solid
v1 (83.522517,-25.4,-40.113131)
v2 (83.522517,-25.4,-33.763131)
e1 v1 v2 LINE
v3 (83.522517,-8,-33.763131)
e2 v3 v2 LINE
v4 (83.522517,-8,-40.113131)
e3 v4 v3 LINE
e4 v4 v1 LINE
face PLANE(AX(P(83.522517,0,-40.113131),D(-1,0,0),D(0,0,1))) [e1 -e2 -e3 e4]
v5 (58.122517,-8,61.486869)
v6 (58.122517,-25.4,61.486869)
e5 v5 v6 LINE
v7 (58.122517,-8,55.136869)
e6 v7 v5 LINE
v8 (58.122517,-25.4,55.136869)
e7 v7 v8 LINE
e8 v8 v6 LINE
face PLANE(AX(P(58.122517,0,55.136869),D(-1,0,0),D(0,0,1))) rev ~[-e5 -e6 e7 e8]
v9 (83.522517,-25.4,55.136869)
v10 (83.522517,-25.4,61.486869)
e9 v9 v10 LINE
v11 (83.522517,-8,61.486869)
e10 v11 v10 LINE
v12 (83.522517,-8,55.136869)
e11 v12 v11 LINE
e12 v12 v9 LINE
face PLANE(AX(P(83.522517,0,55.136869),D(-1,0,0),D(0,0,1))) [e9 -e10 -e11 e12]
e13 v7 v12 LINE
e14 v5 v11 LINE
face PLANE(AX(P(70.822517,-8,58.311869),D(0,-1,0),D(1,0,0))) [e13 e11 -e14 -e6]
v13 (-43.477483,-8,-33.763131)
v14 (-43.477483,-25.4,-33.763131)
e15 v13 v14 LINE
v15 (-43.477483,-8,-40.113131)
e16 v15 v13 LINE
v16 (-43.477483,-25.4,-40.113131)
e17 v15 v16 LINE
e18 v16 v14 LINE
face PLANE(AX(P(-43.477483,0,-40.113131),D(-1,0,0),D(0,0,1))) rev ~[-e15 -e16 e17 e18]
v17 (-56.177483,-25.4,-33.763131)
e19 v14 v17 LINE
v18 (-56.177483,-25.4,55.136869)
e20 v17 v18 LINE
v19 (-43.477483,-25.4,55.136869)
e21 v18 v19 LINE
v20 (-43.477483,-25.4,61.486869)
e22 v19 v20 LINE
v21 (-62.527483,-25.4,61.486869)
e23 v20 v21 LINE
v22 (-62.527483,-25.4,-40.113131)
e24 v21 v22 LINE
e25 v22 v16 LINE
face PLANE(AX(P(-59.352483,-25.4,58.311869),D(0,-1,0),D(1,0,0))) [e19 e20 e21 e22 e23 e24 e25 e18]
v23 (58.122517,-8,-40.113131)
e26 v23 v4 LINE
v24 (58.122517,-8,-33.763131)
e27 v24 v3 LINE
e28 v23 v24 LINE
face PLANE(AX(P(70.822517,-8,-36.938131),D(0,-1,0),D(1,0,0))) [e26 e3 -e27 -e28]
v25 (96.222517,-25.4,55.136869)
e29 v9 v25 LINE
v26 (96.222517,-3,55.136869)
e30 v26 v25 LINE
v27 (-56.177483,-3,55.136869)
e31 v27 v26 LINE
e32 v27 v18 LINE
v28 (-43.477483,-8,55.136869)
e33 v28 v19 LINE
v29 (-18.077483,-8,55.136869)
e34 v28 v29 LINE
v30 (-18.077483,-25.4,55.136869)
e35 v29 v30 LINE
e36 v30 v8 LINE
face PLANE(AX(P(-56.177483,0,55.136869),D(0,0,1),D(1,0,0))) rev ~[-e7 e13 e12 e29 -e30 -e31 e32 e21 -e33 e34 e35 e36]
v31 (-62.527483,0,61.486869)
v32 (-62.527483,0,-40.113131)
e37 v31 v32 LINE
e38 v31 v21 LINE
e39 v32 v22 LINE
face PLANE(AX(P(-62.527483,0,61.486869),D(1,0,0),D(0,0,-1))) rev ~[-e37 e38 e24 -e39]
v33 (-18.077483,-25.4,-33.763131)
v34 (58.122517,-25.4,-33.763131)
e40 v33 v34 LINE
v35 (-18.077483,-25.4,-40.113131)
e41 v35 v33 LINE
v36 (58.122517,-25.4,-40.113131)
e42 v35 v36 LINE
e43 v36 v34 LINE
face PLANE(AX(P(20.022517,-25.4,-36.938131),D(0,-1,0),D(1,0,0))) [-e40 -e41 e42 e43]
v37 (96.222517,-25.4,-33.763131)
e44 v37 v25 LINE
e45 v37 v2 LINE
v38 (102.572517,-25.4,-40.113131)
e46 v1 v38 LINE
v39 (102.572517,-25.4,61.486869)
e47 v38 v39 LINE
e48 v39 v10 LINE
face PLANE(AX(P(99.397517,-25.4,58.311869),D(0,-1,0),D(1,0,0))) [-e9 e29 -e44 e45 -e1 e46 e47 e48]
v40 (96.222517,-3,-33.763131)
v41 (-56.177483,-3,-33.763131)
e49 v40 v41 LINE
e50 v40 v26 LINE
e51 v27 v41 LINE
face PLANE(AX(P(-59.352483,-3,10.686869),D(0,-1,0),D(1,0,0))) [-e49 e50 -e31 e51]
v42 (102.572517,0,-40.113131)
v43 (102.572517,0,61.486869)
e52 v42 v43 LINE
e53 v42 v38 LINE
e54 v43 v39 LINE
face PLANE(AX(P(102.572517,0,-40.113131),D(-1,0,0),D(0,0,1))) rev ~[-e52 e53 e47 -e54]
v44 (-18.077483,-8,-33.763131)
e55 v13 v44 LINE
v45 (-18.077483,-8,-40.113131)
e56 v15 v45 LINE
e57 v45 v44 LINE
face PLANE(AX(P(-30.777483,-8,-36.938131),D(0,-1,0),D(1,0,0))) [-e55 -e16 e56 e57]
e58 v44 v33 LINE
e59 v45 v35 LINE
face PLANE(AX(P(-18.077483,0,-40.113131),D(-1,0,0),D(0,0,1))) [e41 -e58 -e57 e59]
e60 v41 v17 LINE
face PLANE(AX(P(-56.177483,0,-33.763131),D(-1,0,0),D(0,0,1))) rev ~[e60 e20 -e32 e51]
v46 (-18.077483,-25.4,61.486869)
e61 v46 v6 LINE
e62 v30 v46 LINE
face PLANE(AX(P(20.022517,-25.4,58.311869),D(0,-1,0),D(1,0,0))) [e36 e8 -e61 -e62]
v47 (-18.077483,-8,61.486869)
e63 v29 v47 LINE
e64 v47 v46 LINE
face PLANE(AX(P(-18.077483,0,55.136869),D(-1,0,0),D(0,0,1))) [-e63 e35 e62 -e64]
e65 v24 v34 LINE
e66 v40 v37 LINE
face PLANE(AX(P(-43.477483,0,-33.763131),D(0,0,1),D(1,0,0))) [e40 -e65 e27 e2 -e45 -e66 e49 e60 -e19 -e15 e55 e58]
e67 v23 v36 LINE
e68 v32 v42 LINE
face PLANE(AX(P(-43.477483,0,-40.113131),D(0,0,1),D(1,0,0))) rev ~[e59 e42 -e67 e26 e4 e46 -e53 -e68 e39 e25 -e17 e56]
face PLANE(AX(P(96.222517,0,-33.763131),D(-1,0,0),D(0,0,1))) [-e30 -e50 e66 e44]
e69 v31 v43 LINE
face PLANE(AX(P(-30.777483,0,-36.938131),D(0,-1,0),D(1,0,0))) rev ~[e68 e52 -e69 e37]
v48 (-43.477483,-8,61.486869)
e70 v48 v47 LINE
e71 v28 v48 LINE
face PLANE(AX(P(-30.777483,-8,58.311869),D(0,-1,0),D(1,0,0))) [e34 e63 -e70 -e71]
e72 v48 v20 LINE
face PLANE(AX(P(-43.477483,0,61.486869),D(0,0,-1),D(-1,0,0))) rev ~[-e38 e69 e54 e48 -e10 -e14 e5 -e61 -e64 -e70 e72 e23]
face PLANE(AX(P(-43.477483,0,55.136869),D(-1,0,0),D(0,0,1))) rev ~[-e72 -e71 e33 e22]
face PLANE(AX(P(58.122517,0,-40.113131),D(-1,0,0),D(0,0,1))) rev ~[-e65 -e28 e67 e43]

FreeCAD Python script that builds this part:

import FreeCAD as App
import Part
import Sketcher
from FreeCAD import Vector
Q = App.Units.Quantity

doc = App.newDocument("Part")
body = doc.addObject("PartDesign::Body", "Body")

# Sketch on XZ plane
sketch1 = body.newObject("Sketcher::SketchObject", "Sketch")
sketch1.AttachmentSupport = (doc.getObject("XZ_Plane"), [""])
sketch1.MapMode = "FlatFace"
sketch1.addGeometry(Part.LineSegment(Vector(-63, 55, 0), Vector(-63, -34, 0)), False)
sketch1.addGeometry(Part.LineSegment(Vector(-63, -34, 0), Vector(96, -34, 0)), False)
sketch1.addGeometry(Part.LineSegment(Vector(96, -34, 0), Vector(96, 55, 0)), False)
sketch1.addGeometry(Part.LineSegment(Vector(96, 55, 0), Vector(-63, 55, 0)), False)
sketch1.addConstraint(Sketcher.Constraint("Coincident", 0, 2, 1, 1))
sketch1.addConstraint(Sketcher.Constraint("Coincident", 1, 2, 2, 1))
sketch1.addConstraint(Sketcher.Constraint("Coincident", 2, 2, 3, 1))
sketch1.addConstraint(Sketcher.Constraint("Coincident", 3, 2, 0, 1))
sketch1.addConstraint(Sketcher.Constraint("Vertical", 0))
sketch1.addConstraint(Sketcher.Constraint("Horizontal", 1))
sketch1.addConstraint(Sketcher.Constraint("Vertical", 2))
sketch1.addConstraint(Sketcher.Constraint("Horizontal", 3))
sketch1.addConstraint(Sketcher.Constraint("DistanceY", 0, 2, 0, 1, Q("3.5 in")))
sketch1.addConstraint(Sketcher.Constraint("DistanceX", 1, 1, 1, 2, Q("6.25 in")))
sketch1.addConstraint(Sketcher.Constraint("DistanceY", 0, 2, -1, 1, 33.763131))
sketch1.addConstraint(Sketcher.Constraint("DistanceX", 0, 2, -1, 1, 62.527483))
pad1 = body.newObject("PartDesign::Pad", "Pad")
pad1.Profile = sketch1
pad1.Length = 3

# Sketch on XZ plane
sketch2 = body.newObject("Sketcher::SketchObject", "Sketch001")
sketch2.AttachmentSupport = (doc.getObject("XZ_Plane"), [""])
sketch2.MapMode = "FlatFace"
sketch2.addGeometry(Part.LineSegment(Vector(-63, 61, 0), Vector(-63, -40, 0)), False)
sketch2.addGeometry(Part.LineSegment(Vector(-63, -40, 0), Vector(-43, -40, 0)), False)
sketch2.addGeometry(Part.LineSegment(Vector(-43, -40, 0), Vector(-43, -34, 0)), False)
sketch2.addGeometry(Part.LineSegment(Vector(-43, -34, 0), Vector(-56, -34, 0)), False)
sketch2.addGeometry(Part.LineSegment(Vector(-56, -34, 0), Vector(-56, 55, 0)), False)
sketch2.addGeometry(Part.LineSegment(Vector(-56, 55, 0), Vector(-43, 55, 0)), False)
sketch2.addGeometry(Part.LineSegment(Vector(-43, 55, 0), Vector(-43, 61, 0)), False)
sketch2.addGeometry(Part.LineSegment(Vector(-43, 61, 0), Vector(-63, 61, 0)), False)
sketch2.addGeometry(Part.LineSegment(Vector(103, 61, 0), Vector(84, 61, 0)), False)
sketch2.addGeometry(Part.LineSegment(Vector(84, 61, 0), Vector(84, 55, 0)), False)
sketch2.addGeometry(Part.LineSegment(Vector(84, 55, 0), Vector(96, 55, 0)), False)
sketch2.addGeometry(Part.LineSegment(Vector(96, 55, 0), Vector(96, -34, 0)), False)
sketch2.addGeometry(Part.LineSegment(Vector(96, -34, 0), Vector(84, -34, 0)), False)
sketch2.addGeometry(Part.LineSegment(Vector(84, -34, 0), Vector(84, -40, 0)), False)
sketch2.addGeometry(Part.LineSegment(Vector(84, -40, 0), Vector(103, -40, 0)), False)
sketch2.addGeometry(Part.LineSegment(Vector(103, -40, 0), Vector(103, 61, 0)), False)
sketch2.addGeometry(Part.LineSegment(Vector(-18, 61, 0), Vector(-18, 55, 0)), False)
sketch2.addGeometry(Part.LineSegment(Vector(-18, 55, 0), Vector(58, 55, 0)), False)
sketch2.addGeometry(Part.LineSegment(Vector(58, 55, 0), Vector(58, 61, 0)), False)
sketch2.addGeometry(Part.LineSegment(Vector(58, 61, 0), Vector(-18, 61, 0)), False)
sketch2.addGeometry(Part.LineSegment(Vector(-18, -34, 0), Vector(-18, -40, 0)), False)
sketch2.addGeometry(Part.LineSegment(Vector(-18, -40, 0), Vector(58, -40, 0)), False)
sketch2.addGeometry(Part.LineSegment(Vector(58, -40, 0), Vector(58, -34, 0)), False)
sketch2.addGeometry(Part.LineSegment(Vector(58, -34, 0), Vector(-18, -34, 0)), False)
sketch2.addConstraint(Sketcher.Constraint("Coincident", 0, 2, 1, 1))
sketch2.addConstraint(Sketcher.Constraint("Coincident", 1, 2, 2, 1))
sketch2.addConstraint(Sketcher.Constraint("Coincident", 2, 2, 3, 1))
sketch2.addConstraint(Sketcher.Constraint("Coincident", 3, 2, 4, 1))
sketch2.addConstraint(Sketcher.Constraint("Coincident", 4, 2, 5, 1))
sketch2.addConstraint(Sketcher.Constraint("Coincident", 5, 2, 6, 1))
sketch2.addConstraint(Sketcher.Constraint("Coincident", 6, 2, 7, 1))
sketch2.addConstraint(Sketcher.Constraint("Coincident", 7, 2, 0, 1))
sketch2.addConstraint(Sketcher.Constraint("Coincident", 8, 2, 9, 1))
sketch2.addConstraint(Sketcher.Constraint("Coincident", 9, 2, 10, 1))
sketch2.addConstraint(Sketcher.Constraint("Coincident", 10, 2, 11, 1))
sketch2.addConstraint(Sketcher.Constraint("Coincident", 11, 2, 12, 1))
sketch2.addConstraint(Sketcher.Constraint("Coincident", 12, 2, 13, 1))
sketch2.addConstraint(Sketcher.Constraint("Coincident", 13, 2, 14, 1))
sketch2.addConstraint(Sketcher.Constraint("Coincident", 14, 2, 15, 1))
sketch2.addConstraint(Sketcher.Constraint("Coincident", 15, 2, 8, 1))
sketch2.addConstraint(Sketcher.Constraint("Coincident", 16, 2, 17, 1))
sketch2.addConstraint(Sketcher.Constraint("Coincident", 17, 2, 18, 1))
sketch2.addConstraint(Sketcher.Constraint("Coincident", 18, 2, 19, 1))
sketch2.addConstraint(Sketcher.Constraint("Coincident", 19, 2, 16, 1))
sketch2.addConstraint(Sketcher.Constraint("Coincident", 20, 2, 21, 1))
sketch2.addConstraint(Sketcher.Constraint("Coincident", 21, 2, 22, 1))
sketch2.addConstraint(Sketcher.Constraint("Coincident", 22, 2, 23, 1))
sketch2.addConstraint(Sketcher.Constraint("Coincident", 23, 2, 20, 1))
sketch2.addConstraint(Sketcher.Constraint("Vertical", 0))
sketch2.addConstraint(Sketcher.Constraint("Horizontal", 1))
sketch2.addConstraint(Sketcher.Constraint("Vertical", 2))
sketch2.addConstraint(Sketcher.Constraint("Horizontal", 3))
sketch2.addConstraint(Sketcher.Constraint("Vertical", 4))
sketch2.addConstraint(Sketcher.Constraint("Horizontal", 5))
sketch2.addConstraint(Sketcher.Constraint("Vertical", 6))
sketch2.addConstraint(Sketcher.Constraint("Horizontal", 7))
sketch2.addConstraint(Sketcher.Constraint("Horizontal", 8))
sketch2.addConstraint(Sketcher.Constraint("Vertical", 9))
sketch2.addConstraint(Sketcher.Constraint("Horizontal", 10))
sketch2.addConstraint(Sketcher.Constraint("Vertical", 11))
sketch2.addConstraint(Sketcher.Constraint("Horizontal", 12))
sketch2.addConstraint(Sketcher.Constraint("Vertical", 13))
sketch2.addConstraint(Sketcher.Constraint("Horizontal", 14))
sketch2.addConstraint(Sketcher.Constraint("Vertical", 15))
sketch2.addConstraint(Sketcher.Constraint("Vertical", 16))
sketch2.addConstraint(Sketcher.Constraint("Horizontal", 17))
sketch2.addConstraint(Sketcher.Constraint("Vertical", 18))
sketch2.addConstraint(Sketcher.Constraint("Horizontal", 19))
sketch2.addConstraint(Sketcher.Constraint("Vertical", 20))
sketch2.addConstraint(Sketcher.Constraint("Horizontal", 21))
sketch2.addConstraint(Sketcher.Constraint("Vertical", 22))
sketch2.addConstraint(Sketcher.Constraint("Horizontal", 23))
sketch2.addConstraint(Sketcher.Constraint("Horizontal", 7, 2, 8, 2))
sketch2.addConstraint(Sketcher.Constraint("Horizontal", 5, 2, 9, 2))
sketch2.addConstraint(Sketcher.Constraint("Horizontal", 3, 2, 11, 2))
sketch2.addConstraint(Sketcher.Constraint("Horizontal", 1, 2, 13, 2))
sketch2.addConstraint(Sketcher.Constraint("Horizontal", 10, 2, 16, 2))
sketch2.addConstraint(Sketcher.Constraint("Horizontal", 15, 2, 18, 2))
sketch2.addConstraint(Sketcher.Constraint("Horizontal", 14, 2, 20, 2))
sketch2.addConstraint(Sketcher.Constraint("Horizontal", 12, 2, 22, 2))
sketch2.addConstraint(Sketcher.Constraint("Vertical", 2, 2, 5, 2))
sketch2.addConstraint(Sketcher.Constraint("Vertical", 9, 2, 12, 2))
sketch2.addConstraint(Sketcher.Constraint("Vertical", 19, 2, 20, 2))
sketch2.addConstraint(Sketcher.Constraint("Vertical", 18, 2, 21, 2))
sketch2.addConstraint(Sketcher.Constraint("Equal", 7, 8))
sketch2.addConstraint(Sketcher.Constraint("Equal", 5, 10))
sketch2.addConstraint(Sketcher.Constraint("Equal", 2, 6))
sketch2.addConstraint(Sketcher.Constraint("DistanceX", 17, 1, 17, 2, Q("3 in")))
sketch2.addConstraint(Sketcher.Constraint("DistanceY", 0, 2, 0, 1, Q("4 in")))
sketch2.addConstraint(Sketcher.Constraint("DistanceX", 3, 2, 3, 1, Q("0.5 in")))
sketch2.addConstraint(Sketcher.Constraint("DistanceY", 4, 1, 4, 2, Q("3.5 in")))
sketch2.addConstraint(Sketcher.Constraint("DistanceX", 6, 2, 8, 2, Q("5 in")))
sketch2.addConstraint(Sketcher.Constraint("DistanceX", 5, 2, 16, 2, Q("1 in")))
sketch2.addConstraint(Sketcher.Constraint("DistanceX", 1, 1, 1, 2, Q("0.75 in")))
sketch2.addConstraint(Sketcher.Constraint("DistanceY", 0, 2, -1, 1, 40.113131))
sketch2.addConstraint(Sketcher.Constraint("DistanceX", 0, 2, -1, 1, 62.527483))
pad2 = body.newObject("PartDesign::Pad", "Pad001")
pad2.Profile = sketch2
pad2.Length = Q("1 in")

# Sketch on XZ plane
sketch3 = body.newObject("Sketcher::SketchObject", "Sketch002")
sketch3.AttachmentSupport = (doc.getObject("XZ_Plane"), [""])
sketch3.MapMode = "FlatFace"
sketch3.addGeometry(Part.LineSegment(Vector(-43, -34, 0), Vector(-43, -40, 0)), False)
sketch3.addGeometry(Part.LineSegment(Vector(-43, -40, 0), Vector(-18, -40, 0)), False)
sketch3.addGeometry(Part.LineSegment(Vector(-18, -40, 0), Vector(-18, -34, 0)), False)
sketch3.addGeometry(Part.LineSegment(Vector(-18, -34, 0), Vector(-43, -34, 0)), False)
sketch3.addGeometry(Part.LineSegment(Vector(-43, 61, 0), Vector(-43, 55, 0)), False)
sketch3.addGeometry(Part.LineSegment(Vector(-43, 55, 0), Vector(-18, 55, 0)), False)
sketch3.addGeometry(Part.LineSegment(Vector(-18, 55, 0), Vector(-18, 61, 0)), False)
sketch3.addGeometry(Part.LineSegment(Vector(-18, 61, 0), Vector(-43, 61, 0)), False)
sketch3.addGeometry(Part.LineSegment(Vector(58, 61, 0), Vector(58, 55, 0)), False)
sketch3.addGeometry(Part.LineSegment(Vector(58, 55, 0), Vector(84, 55, 0)), False)
sketch3.addGeometry(Part.LineSegment(Vector(84, 55, 0), Vector(84, 61, 0)), False)
sketch3.addGeometry(Part.LineSegment(Vector(84, 61, 0), Vector(58, 61, 0)), False)
sketch3.addGeometry(Part.LineSegment(Vector(58, -34, 0), Vector(58, -40, 0)), False)
sketch3.addGeometry(Part.LineSegment(Vector(58, -40, 0), Vector(84, -40, 0)), False)
sketch3.addGeometry(Part.LineSegment(Vector(84, -40, 0), Vector(84, -34, 0)), False)
sketch3.addGeometry(Part.LineSegment(Vector(84, -34, 0), Vector(58, -34, 0)), False)
sketch3.addConstraint(Sketcher.Constraint("Coincident", 0, 2, 1, 1))
sketch3.addConstraint(Sketcher.Constraint("Coincident", 1, 2, 2, 1))
sketch3.addConstraint(Sketcher.Constraint("Coincident", 2, 2, 3, 1))
sketch3.addConstraint(Sketcher.Constraint("Coincident", 3, 2, 0, 1))
sketch3.addConstraint(Sketcher.Constraint("Coincident", 4, 2, 5, 1))
sketch3.addConstraint(Sketcher.Constraint("Coincident", 5, 2, 6, 1))
sketch3.addConstraint(Sketcher.Constraint("Coincident", 6, 2, 7, 1))
sketch3.addConstraint(Sketcher.Constraint("Coincident", 7, 2, 4, 1))
sketch3.addConstraint(Sketcher.Constraint("Coincident", 8, 2, 9, 1))
sketch3.addConstraint(Sketcher.Constraint("Coincident", 9, 2, 10, 1))
sketch3.addConstraint(Sketcher.Constraint("Coincident", 10, 2, 11, 1))
sketch3.addConstraint(Sketcher.Constraint("Coincident", 11, 2, 8, 1))
sketch3.addConstraint(Sketcher.Constraint("Coincident", 12, 2, 13, 1))
sketch3.addConstraint(Sketcher.Constraint("Coincident", 13, 2, 14, 1))
sketch3.addConstraint(Sketcher.Constraint("Coincident", 14, 2, 15, 1))
sketch3.addConstraint(Sketcher.Constraint("Coincident", 15, 2, 12, 1))
sketch3.addConstraint(Sketcher.Constraint("Vertical", 0))
sketch3.addConstraint(Sketcher.Constraint("Horizontal", 1))
sketch3.addConstraint(Sketcher.Constraint("Vertical", 2))
sketch3.addConstraint(Sketcher.Constraint("Horizontal", 3))
sketch3.addConstraint(Sketcher.Constraint("Vertical", 4))
sketch3.addConstraint(Sketcher.Constraint("Horizontal", 5))
sketch3.addConstraint(Sketcher.Constraint("Vertical", 6))
sketch3.addConstraint(Sketcher.Constraint("Horizontal", 7))
sketch3.addConstraint(Sketcher.Constraint("Vertical", 8))
sketch3.addConstraint(Sketcher.Constraint("Horizontal", 9))
sketch3.addConstraint(Sketcher.Constraint("Vertical", 10))
sketch3.addConstraint(Sketcher.Constraint("Horizontal", 11))
sketch3.addConstraint(Sketcher.Constraint("Vertical", 12))
sketch3.addConstraint(Sketcher.Constraint("Horizontal", 13))
sketch3.addConstraint(Sketcher.Constraint("Vertical", 14))
sketch3.addConstraint(Sketcher.Constraint("Horizontal", 15))
sketch3.addConstraint(Sketcher.Constraint("Horizontal", 5, 2, 8, 2))
sketch3.addConstraint(Sketcher.Constraint("Horizontal", 7, 2, 10, 2))
sketch3.addConstraint(Sketcher.Constraint("Horizontal", 1, 2, 12, 2))
sketch3.addConstraint(Sketcher.Constraint("Horizontal", 3, 2, 14, 2))
sketch3.addConstraint(Sketcher.Constraint("Vertical", 3, 2, 4, 2))
sketch3.addConstraint(Sketcher.Constraint("Vertical", 2, 2, 5, 2))
sketch3.addConstraint(Sketcher.Constraint("Vertical", 11, 2, 12, 2))
sketch3.addConstraint(Sketcher.Constraint("Vertical", 10, 2, 13, 2))
sketch3.addConstraint(Sketcher.Constraint("Equal", 7, 9))
sketch3.addConstraint(Sketcher.Constraint("Equal", 2, 4))
sketch3.addConstraint(Sketcher.Constraint("DistanceX", 1, 1, 1, 2, Q("1 in")))
sketch3.addConstraint(Sketcher.Constraint("DistanceY", 1, 2, 6, 2, Q("4 in")))
sketch3.addConstraint(Sketcher.Constraint("DistanceX", 5, 2, 8, 2, Q("3 in")))
sketch3.addConstraint(Sketcher.Constraint("DistanceY", 0, 2, 0, 1, Q("0.25 in")))
sketch3.addConstraint(Sketcher.Constraint("DistanceY", 0, 2, -1, 1, 40.113131))
sketch3.addConstraint(Sketcher.Constraint("DistanceX", 0, 2, -1, 1, 43.477483))
pad3 = body.newObject("PartDesign::Pad", "Pad002")
pad3.Profile = sketch3
pad3.Length = 8

doc.recompute()
